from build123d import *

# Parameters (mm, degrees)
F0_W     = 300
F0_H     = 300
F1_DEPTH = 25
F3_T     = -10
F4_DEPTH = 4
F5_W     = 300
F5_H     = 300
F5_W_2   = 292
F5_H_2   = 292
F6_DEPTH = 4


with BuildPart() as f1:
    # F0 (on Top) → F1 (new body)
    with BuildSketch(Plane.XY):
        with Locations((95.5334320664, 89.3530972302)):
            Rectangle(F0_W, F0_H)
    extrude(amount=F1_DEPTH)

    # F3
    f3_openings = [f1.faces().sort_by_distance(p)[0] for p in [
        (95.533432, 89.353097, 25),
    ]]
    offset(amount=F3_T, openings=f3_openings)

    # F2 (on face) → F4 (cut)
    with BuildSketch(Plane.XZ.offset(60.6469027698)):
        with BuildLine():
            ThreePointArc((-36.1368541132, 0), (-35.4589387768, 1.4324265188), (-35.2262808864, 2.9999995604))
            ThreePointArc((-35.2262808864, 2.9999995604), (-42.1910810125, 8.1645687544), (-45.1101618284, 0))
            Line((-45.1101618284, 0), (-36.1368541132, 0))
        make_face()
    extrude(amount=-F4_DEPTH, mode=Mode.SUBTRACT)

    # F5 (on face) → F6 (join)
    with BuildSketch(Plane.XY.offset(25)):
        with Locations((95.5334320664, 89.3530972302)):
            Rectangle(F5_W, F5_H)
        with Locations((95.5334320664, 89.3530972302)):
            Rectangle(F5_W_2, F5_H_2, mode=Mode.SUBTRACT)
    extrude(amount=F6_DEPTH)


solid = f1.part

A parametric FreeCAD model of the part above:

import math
import FreeCAD as App
import Part
import Sketcher


def faces_at(feature, points):
    """Names of the faces that lie closest to the given points."""
    faces = feature.Shape.Faces
    near = lambda p: min(range(len(faces)), key=lambda i: faces[i].distToShape(Part.Vertex(*p))[0])
    return sorted({f"Face{near(p) + 1}" for p in points})


def add_polygon(sketch, points):
    """Adds a closed chain of lines whose ends are joined by coincident constraints."""
    first, n = sketch.GeometryCount, len(points)
    for a, b in zip(points, points[1:] + points[:1]):
        sketch.addGeometry(Part.LineSegment(App.Vector(*a, 0), App.Vector(*b, 0)), False)
    for i in range(n):
        sketch.addConstraint(Sketcher.Constraint("Coincident", first + i, 2, first + (i + 1) % n, 1))

doc = App.newDocument("Part")
body = doc.addObject("PartDesign::Body", "Body")

# Sketch on XY plane
sketch1 = body.newObject("Sketcher::SketchObject", "Sketch")
sketch1.AttachmentSupport = (doc.getObject("XY_Plane"), [""])
sketch1.MapMode = "FlatFace"
add_polygon(sketch1, [(-54, 239), (-54, -61), (246, -61), (246, 239)])  # lines 0-3
sketch1.addConstraint([
    Sketcher.Constraint("Vertical", 0),
    Sketcher.Constraint("Horizontal", 1),
    Sketcher.Constraint("Vertical", 2),
    Sketcher.Constraint("Horizontal", 3),
    Sketcher.Constraint("Equal", 3, 0),
    Sketcher.Constraint("DistanceX", 1, 1, 1, 2, 300.0),
    Sketcher.Constraint("DistanceX", 0, 2, -1, 1, 54.466568),
    Sketcher.Constraint("DistanceY", 0, 2, -1, 1, 60.646903),
])
pad1 = body.newObject("PartDesign::Pad", "Pad")
pad1.Profile = sketch1
pad1.Length = 25
doc.recompute()

thickness = body.newObject("PartDesign::Thickness", "Thickness")
thickness.Base = (pad1, faces_at(pad1, [(95.533, 89.353, 25)]))
thickness.Value = 10
thickness.Reversed = True
thickness.Join = "Arc"

# Sketch on XZ plane
sketch2 = body.newObject("Sketcher::SketchObject", "Sketch001")
sketch2.AttachmentSupport = (doc.getObject("XZ_Plane"), [""])
sketch2.MapMode = "FlatFace"
sketch2.AttachmentOffset = App.Placement(App.Vector(0, 0, 60.646903), App.Rotation())
sketch2.addGeometry([
    Part.ArcOfCircle(Part.Circle(App.Vector(-40.6, 3, 0), App.Vector(0, 0, 1), 5.4), math.radians(-34), math.radians(0)),
    Part.ArcOfCircle(Part.Circle(App.Vector(-40.6, 3, 0), App.Vector(0, 0, 1), 5.4), math.radians(0), math.radians(214)),
    Part.LineSegment(App.Vector(-45.1, 0, 0), App.Vector(-36.1, 0, 0)),
], False)
sketch2.addConstraint([
    Sketcher.Constraint("Tangent", 0, 2, 1, 1),
    Sketcher.Constraint("Coincident", 1, 2, 2, 1),
    Sketcher.Constraint("Coincident", 2, 2, 0, 1),
    Sketcher.Constraint("Horizontal", 2),
    Sketcher.Constraint("Equal", 0, 1),
    Sketcher.Constraint("PointOnObject", 1, 2, -1),
    Sketcher.Constraint("Horizontal", 1, 3, 0, 2),
    Sketcher.Constraint("DistanceY", -1, 1, 0, 3, 3.0),
    Sketcher.Constraint("Radius", 0, 5.397227),
    Sketcher.Constraint("DistanceX", 0, 2, -1, 1, 35.226281),
])
pocket1 = body.newObject("PartDesign::Pocket", "Pocket")
pocket1.Profile = sketch2
pocket1.Length = 4

# Sketch on XY plane
sketch3 = body.newObject("Sketcher::SketchObject", "Sketch002")
sketch3.AttachmentSupport = (doc.getObject("XY_Plane"), [""])
sketch3.MapMode = "FlatFace"
sketch3.AttachmentOffset = App.Placement(App.Vector(0, 0, 25), App.Rotation())
add_polygon(sketch3, [(-54, 239), (-54, -61), (246, -61), (246, 239)])  # lines 0-3
add_polygon(sketch3, [(242, -57), (-50, -57), (-50, 235), (242, 235)])  # lines 4-7
sketch3.addConstraint([
    Sketcher.Constraint("Vertical", 0),
    Sketcher.Constraint("Horizontal", 1),
    Sketcher.Constraint("Vertical", 2),
    Sketcher.Constraint("Horizontal", 3),
    Sketcher.Constraint("Horizontal", 4),
    Sketcher.Constraint("Vertical", 5),
    Sketcher.Constraint("Horizontal", 6),
    Sketcher.Constraint("Vertical", 7),
    Sketcher.Constraint("Equal", 3, 0),
    Sketcher.Constraint("Equal", 6, 5),
    Sketcher.Constraint("DistanceX", 1, 1, 1, 2, 300.0),
    Sketcher.Constraint("DistanceX", 4, 2, 4, 1, 292.0),
    Sketcher.Constraint("DistanceX", 0, 2, 4, 2, 4.0),
    Sketcher.Constraint("DistanceY", 0, 2, 4, 2, 4.0),
    Sketcher.Constraint("DistanceX", 0, 2, -1, 1, 54.466568),
    Sketcher.Constraint("DistanceY", 0, 2, -1, 1, 60.646903),
])
pad2 = body.newObject("PartDesign::Pad", "Pad001")
pad2.Profile = sketch3
pad2.Length = 4

doc.recompute()
